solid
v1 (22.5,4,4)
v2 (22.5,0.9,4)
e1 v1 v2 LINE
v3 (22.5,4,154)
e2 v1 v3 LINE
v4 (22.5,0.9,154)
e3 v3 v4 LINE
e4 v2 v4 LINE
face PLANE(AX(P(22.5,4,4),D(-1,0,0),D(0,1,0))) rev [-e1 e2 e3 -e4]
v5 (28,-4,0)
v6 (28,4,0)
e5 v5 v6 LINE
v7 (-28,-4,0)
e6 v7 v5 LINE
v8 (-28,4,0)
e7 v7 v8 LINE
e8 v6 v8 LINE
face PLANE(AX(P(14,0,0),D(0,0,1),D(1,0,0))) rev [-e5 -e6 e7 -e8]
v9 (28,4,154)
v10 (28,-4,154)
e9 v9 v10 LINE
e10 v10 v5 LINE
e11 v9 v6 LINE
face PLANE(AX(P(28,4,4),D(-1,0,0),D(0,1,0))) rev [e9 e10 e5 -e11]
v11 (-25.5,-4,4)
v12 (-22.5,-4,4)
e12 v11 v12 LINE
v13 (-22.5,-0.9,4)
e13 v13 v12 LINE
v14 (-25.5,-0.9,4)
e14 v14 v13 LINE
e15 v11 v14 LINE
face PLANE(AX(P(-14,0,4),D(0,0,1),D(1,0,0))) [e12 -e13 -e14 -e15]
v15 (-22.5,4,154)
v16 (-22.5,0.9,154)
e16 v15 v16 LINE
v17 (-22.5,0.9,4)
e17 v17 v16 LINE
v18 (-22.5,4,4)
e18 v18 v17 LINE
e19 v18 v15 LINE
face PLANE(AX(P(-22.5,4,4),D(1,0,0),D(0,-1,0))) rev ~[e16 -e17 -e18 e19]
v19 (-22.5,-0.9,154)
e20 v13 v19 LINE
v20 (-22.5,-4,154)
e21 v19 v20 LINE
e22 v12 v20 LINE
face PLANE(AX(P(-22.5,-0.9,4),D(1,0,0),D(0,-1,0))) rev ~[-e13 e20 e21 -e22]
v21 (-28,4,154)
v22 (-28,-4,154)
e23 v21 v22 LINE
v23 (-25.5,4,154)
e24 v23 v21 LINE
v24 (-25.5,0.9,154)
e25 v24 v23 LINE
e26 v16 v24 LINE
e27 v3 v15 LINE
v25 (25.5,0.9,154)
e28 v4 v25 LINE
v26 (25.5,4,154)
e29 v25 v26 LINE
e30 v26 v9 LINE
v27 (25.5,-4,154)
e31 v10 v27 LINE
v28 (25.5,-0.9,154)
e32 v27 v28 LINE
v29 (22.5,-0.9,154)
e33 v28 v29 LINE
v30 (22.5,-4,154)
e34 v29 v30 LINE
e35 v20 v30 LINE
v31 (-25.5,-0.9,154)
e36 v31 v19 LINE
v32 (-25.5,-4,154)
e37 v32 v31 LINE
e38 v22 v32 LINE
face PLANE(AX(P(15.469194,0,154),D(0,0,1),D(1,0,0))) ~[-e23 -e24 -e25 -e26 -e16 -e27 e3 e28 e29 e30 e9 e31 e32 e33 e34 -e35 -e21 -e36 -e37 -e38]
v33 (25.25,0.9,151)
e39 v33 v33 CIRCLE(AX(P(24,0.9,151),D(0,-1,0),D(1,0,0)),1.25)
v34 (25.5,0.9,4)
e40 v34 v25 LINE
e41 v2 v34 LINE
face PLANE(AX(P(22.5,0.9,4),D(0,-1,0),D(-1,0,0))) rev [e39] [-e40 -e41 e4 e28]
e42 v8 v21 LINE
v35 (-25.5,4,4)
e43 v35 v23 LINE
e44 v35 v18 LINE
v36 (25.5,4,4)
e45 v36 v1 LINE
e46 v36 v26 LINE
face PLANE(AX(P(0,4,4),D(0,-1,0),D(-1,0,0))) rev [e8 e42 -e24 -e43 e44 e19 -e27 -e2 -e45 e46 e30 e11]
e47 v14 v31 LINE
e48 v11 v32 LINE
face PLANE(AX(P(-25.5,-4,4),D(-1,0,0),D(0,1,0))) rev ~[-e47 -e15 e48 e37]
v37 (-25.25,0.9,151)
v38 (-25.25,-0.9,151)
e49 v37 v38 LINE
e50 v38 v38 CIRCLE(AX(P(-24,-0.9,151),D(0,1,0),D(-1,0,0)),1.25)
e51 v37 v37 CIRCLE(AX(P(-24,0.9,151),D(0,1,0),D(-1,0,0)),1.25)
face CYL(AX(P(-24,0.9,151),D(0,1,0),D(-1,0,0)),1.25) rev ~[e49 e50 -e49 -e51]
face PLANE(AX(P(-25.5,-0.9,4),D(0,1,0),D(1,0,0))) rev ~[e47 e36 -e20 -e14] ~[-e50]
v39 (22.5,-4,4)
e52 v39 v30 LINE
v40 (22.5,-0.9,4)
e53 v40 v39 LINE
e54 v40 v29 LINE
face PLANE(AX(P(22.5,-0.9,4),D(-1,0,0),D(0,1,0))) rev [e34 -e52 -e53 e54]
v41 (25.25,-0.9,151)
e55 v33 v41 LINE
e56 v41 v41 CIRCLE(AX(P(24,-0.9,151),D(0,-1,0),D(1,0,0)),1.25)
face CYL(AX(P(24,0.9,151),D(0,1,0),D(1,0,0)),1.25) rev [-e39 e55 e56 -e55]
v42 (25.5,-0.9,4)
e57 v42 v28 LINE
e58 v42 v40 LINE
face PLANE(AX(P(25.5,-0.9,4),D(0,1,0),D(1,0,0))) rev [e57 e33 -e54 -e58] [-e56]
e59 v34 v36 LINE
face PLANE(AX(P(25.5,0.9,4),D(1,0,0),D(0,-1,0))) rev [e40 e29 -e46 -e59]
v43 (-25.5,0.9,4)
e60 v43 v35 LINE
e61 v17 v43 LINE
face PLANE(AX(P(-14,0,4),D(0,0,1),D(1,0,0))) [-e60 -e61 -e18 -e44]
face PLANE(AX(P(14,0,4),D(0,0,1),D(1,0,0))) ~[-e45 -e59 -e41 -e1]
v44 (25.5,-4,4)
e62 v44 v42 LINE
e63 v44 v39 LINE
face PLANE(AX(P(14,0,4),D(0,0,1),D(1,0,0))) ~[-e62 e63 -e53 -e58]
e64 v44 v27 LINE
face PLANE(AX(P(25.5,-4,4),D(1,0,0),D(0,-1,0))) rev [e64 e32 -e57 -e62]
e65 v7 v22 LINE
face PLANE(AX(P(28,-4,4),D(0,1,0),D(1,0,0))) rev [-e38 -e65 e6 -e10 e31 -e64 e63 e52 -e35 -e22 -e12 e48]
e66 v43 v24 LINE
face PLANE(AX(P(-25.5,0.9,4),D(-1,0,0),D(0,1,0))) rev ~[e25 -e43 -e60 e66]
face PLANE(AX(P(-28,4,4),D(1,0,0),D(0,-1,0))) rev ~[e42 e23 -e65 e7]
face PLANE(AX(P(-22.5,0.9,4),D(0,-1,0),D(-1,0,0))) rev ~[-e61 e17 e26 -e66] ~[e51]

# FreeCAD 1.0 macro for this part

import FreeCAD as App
import Part
import Sketcher
Q = App.Units.Quantity


def add_polygon(sketch, points):
    """Adds a closed chain of lines whose ends are joined by coincident constraints."""
    first, n = sketch.GeometryCount, len(points)
    for a, b in zip(points, points[1:] + points[:1]):
        sketch.addGeometry(Part.LineSegment(App.Vector(*a, 0), App.Vector(*b, 0)), False)
    for i in range(n):
        sketch.addConstraint(Sketcher.Constraint("Coincident", first + i, 2, first + (i + 1) % n, 1))

doc = App.newDocument("Part")
body = doc.addObject("PartDesign::Body", "Body")

# Sketch on XY plane
sketch1 = body.newObject("Sketcher::SketchObject", "Sketch")
sketch1.AttachmentSupport = (doc.getObject("XY_Plane"), [""])
sketch1.MapMode = "FlatFace"
add_polygon(sketch1, [(-28, 4), (-28, -4), (0, -4), (0, 4)])  # lines 0-3
sketch1.addConstraint(Sketcher.Constraint("Vertical", 0))
sketch1.addConstraint(Sketcher.Constraint("Horizontal", 1))
sketch1.addConstraint(Sketcher.Constraint("Vertical", 2))
sketch1.addConstraint(Sketcher.Constraint("Horizontal", 3))
sketch1.addConstraint(Sketcher.Constraint("Symmetric", 1, 2, 2, 2, -1, 1))
sketch1.addConstraint(Sketcher.Constraint("DistanceX", 1, 1, 1, 2, Q("28 mm")))
sketch1.addConstraint(Sketcher.Constraint("DistanceY", 0, 2, 0, 1, Q("8 mm")))
pad1 = body.newObject("PartDesign::Pad", "Pad")
pad1.Profile = sketch1
pad1.Length = 4

# Sketch on XY plane
sketch2 = body.newObject("Sketcher::SketchObject", "Sketch001")
sketch2.AttachmentSupport = (doc.getObject("XY_Plane"), [""])
sketch2.MapMode = "FlatFace"
sketch2.AttachmentOffset = App.Placement(App.Vector(0, 0, 4), App.Rotation())
add_polygon(sketch2, [(-22.5, 0.9), (-25.5, 0.9), (-25.5, 4), (-28, 4), (-28, -4), (-25.5, -4), (-25.5, -0.9), (-22.5, -0.9), (-22.5, -4), (0, -4), (0, 4), (-22.5, 4)])  # lines 0-11
sketch2.addConstraint(Sketcher.Constraint("Horizontal", 0))
sketch2.addConstraint(Sketcher.Constraint("Vertical", 1))
sketch2.addConstraint(Sketcher.Constraint("Horizontal", 2))
sketch2.addConstraint(Sketcher.Constraint("Vertical", 3))
sketch2.addConstraint(Sketcher.Constraint("Horizontal", 4))
sketch2.addConstraint(Sketcher.Constraint("Vertical", 5))
sketch2.addConstraint(Sketcher.Constraint("Horizontal", 6))
sketch2.addConstraint(Sketcher.Constraint("Vertical", 7))
sketch2.addConstraint(Sketcher.Constraint("Horizontal", 8))
sketch2.addConstraint(Sketcher.Constraint("Vertical", 9))
sketch2.addConstraint(Sketcher.Constraint("Horizontal", 10))
sketch2.addConstraint(Sketcher.Constraint("Vertical", 11))
sketch2.addConstraint(Sketcher.Constraint("Symmetric", 8, 2, 9, 2, -1, 1))
sketch2.addConstraint(Sketcher.Constraint("Symmetric", 1, 2, 4, 2, -1))
sketch2.addConstraint(Sketcher.Constraint("Symmetric", 6, 2, 11, 2, -1))
sketch2.addConstraint(Sketcher.Constraint("Horizontal", 4, 2, 7, 2))
sketch2.addConstraint(Sketcher.Constraint("DistanceX", 0, 2, 0, 1, Q("3 mm")))
sketch2.addConstraint(Sketcher.Constraint("DistanceY", 3, 2, 3, 1, Q("8 mm")))
sketch2.addConstraint(Sketcher.Constraint("DistanceX", 2, 2, 2, 1, Q("2.5 mm")))
sketch2.addConstraint(Sketcher.Constraint("DistanceX", 8, 1, 8, 2, Q("22.5 mm")))
sketch2.addConstraint(Sketcher.Constraint("DistanceY", 1, 1, 1, 2, Q("3.1 mm")))
pad2 = body.newObject("PartDesign::Pad", "Pad001")
pad2.Profile = sketch2
pad2.Length = 150

# Sketch on XZ plane
sketch3 = body.newObject("Sketcher::SketchObject", "Sketch002")
sketch3.AttachmentSupport = (doc.getObject("XZ_Plane"), [""])
sketch3.MapMode = "FlatFace"
sketch3.AttachmentOffset = App.Placement(App.Vector(0, 0, -0.9), App.Rotation())
sketch3.addGeometry(Part.Circle(App.Vector(-24, 151, 0), App.Vector(0, 0, 1), 1.25), False)
sketch3.addConstraint(Sketcher.Constraint("Diameter", 0, Q("2.5 mm")))
sketch3.addConstraint(Sketcher.Constraint("DistanceX", 0, 3, -1, 1, Q("24 mm")))
sketch3.addConstraint(Sketcher.Constraint("DistanceY", -1, 1, 0, 3, Q("151 mm")))
pocket1 = body.newObject("PartDesign::Pocket", "Pocket")
pocket1.Profile = sketch3
pocket1.Length = 1.8
pocket1.Reversed = True
doc.recompute()

mirrored = body.newObject("PartDesign::Mirrored", "Mirrored")
mirrored.Originals = [pad1, pad2, pocket1]
mirrored.MirrorPlane = (doc.getObject("YZ_Plane"), [""])
body.Tip = mirrored

doc.recompute()
